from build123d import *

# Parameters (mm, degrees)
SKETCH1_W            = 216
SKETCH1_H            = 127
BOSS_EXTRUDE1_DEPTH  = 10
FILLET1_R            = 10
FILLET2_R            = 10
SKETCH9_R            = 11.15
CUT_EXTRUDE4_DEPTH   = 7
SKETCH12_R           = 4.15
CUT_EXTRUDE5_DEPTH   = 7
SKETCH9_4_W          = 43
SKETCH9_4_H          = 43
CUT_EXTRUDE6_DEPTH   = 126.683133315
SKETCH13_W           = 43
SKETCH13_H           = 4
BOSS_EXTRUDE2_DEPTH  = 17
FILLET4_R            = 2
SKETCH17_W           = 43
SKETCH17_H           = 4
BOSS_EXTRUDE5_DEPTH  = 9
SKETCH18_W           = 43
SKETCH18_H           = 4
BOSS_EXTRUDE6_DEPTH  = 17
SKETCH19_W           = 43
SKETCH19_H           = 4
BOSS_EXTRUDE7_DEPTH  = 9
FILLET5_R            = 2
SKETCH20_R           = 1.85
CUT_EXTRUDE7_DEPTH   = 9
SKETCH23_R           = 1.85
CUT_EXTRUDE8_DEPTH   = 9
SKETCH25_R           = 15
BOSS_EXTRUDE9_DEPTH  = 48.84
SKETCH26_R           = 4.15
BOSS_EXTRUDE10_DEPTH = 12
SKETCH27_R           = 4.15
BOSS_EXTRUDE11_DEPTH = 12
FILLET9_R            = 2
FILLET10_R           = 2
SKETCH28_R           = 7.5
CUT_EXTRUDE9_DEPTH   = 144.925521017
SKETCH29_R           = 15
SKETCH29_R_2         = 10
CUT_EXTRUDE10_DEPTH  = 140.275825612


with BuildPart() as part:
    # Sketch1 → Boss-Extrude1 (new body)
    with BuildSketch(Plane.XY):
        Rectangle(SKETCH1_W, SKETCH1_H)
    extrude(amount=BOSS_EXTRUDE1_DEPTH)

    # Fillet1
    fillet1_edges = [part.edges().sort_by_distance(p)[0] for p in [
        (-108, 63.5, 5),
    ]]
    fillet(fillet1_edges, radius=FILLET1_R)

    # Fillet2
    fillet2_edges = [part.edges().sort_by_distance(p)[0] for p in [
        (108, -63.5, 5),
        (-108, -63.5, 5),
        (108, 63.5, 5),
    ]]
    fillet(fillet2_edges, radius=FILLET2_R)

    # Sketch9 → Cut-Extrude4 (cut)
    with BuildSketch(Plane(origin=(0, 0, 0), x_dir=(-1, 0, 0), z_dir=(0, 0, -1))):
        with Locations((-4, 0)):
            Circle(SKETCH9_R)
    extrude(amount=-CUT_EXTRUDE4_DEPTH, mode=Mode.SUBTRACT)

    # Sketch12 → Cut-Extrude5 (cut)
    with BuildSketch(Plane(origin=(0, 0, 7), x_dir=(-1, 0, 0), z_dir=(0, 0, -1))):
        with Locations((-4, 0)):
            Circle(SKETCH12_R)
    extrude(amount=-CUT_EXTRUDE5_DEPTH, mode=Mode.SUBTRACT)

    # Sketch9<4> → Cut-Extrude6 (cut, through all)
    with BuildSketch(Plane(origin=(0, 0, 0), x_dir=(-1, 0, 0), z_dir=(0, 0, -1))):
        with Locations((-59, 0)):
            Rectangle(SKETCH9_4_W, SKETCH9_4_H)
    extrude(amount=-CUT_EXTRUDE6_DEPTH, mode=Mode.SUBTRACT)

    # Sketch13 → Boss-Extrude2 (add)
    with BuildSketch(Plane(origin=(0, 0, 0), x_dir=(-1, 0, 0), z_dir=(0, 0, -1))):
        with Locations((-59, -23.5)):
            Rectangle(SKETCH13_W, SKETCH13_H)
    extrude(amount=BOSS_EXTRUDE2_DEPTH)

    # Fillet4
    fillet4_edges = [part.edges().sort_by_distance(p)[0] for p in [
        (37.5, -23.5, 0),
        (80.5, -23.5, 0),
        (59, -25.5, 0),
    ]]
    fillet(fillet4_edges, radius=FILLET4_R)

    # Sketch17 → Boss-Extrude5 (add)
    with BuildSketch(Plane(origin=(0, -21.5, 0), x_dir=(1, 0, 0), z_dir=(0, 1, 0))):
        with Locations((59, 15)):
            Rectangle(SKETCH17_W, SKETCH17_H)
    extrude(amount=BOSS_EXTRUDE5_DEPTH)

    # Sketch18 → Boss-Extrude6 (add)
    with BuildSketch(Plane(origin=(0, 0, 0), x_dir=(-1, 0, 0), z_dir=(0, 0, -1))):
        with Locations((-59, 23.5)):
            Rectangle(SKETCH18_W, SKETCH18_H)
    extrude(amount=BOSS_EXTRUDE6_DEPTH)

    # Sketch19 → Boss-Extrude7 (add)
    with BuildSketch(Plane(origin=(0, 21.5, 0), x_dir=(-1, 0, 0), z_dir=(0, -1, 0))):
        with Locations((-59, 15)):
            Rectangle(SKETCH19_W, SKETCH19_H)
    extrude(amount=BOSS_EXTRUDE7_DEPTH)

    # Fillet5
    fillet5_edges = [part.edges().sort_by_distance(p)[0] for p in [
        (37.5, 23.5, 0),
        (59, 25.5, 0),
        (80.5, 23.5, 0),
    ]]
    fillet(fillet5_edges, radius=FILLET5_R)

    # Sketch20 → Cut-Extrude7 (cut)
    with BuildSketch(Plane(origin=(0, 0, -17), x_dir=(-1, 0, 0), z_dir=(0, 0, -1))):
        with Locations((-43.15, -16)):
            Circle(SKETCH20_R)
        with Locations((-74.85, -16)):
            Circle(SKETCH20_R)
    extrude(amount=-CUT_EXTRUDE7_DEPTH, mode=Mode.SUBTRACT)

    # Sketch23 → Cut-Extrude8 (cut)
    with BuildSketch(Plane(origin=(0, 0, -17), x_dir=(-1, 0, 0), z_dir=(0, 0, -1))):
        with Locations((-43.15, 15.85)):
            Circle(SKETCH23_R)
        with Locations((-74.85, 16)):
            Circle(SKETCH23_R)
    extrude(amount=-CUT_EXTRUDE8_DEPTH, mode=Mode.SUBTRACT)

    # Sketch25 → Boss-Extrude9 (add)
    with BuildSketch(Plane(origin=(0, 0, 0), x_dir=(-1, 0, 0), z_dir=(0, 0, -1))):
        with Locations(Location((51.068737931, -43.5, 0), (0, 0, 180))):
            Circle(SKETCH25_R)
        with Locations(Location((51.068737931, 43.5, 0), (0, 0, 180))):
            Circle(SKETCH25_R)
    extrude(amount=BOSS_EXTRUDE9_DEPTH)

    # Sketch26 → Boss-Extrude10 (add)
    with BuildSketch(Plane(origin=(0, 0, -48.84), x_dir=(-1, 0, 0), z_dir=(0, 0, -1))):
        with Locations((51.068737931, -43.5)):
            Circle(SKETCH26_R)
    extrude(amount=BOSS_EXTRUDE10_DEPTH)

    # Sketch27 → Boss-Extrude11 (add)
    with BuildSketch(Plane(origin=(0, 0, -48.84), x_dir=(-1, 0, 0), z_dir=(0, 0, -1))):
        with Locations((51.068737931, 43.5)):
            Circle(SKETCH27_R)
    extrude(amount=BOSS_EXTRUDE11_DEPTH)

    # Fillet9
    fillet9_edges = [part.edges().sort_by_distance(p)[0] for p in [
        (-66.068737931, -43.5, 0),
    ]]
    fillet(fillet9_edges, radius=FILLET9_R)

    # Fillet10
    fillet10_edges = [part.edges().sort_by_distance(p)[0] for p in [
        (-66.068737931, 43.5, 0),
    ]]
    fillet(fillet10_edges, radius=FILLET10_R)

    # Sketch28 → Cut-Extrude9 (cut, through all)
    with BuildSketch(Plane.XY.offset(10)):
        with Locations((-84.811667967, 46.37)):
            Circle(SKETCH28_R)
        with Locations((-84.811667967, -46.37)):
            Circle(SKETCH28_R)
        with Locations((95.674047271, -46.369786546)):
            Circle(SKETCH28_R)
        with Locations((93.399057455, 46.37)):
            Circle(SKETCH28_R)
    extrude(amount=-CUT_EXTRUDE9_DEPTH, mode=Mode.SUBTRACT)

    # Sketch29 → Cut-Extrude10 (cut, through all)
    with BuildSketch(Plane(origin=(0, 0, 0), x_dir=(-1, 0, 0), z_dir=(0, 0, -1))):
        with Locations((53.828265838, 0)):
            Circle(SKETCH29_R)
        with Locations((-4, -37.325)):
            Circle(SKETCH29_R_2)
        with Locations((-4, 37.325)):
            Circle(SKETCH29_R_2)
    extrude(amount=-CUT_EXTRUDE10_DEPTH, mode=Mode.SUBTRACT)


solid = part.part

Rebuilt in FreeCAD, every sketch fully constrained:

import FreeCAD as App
import Part
import Sketcher

V = App.Vector


def edges_at(feature, points):
    """Names of the edges that pass closest to the given points."""
    edges = feature.Shape.Edges
    near = lambda p: min(range(len(edges)), key=lambda i: edges[i].distToShape(Part.Vertex(*p))[0])
    return sorted({f"Edge{near(p) + 1}" for p in points})


def add_polygon(sketch, points):
    """Adds a closed chain of lines whose ends are joined by coincident constraints."""
    first, n = sketch.GeometryCount, len(points)
    for a, b in zip(points, points[1:] + points[:1]):
        sketch.addGeometry(Part.LineSegment(App.Vector(*a, 0), App.Vector(*b, 0)), False)
    for i in range(n):
        sketch.addConstraint(Sketcher.Constraint("Coincident", first + i, 2, first + (i + 1) % n, 1))

doc = App.newDocument("Part")
body = doc.addObject("PartDesign::Body", "Body")

# Sketch on XY plane
sketch1 = doc.addObject("Sketcher::SketchObject", "Sketch")
body.addObject(sketch1)
sketch1.AttachmentSupport = (doc.XY_Plane, [""])
sketch1.MapMode = "FlatFace"
add_polygon(sketch1, [(-108, 64), (-108, -64), (108, -64), (108, 64)])  # lines 0-3
sketch1.addConstraint([
    Sketcher.Constraint("Vertical", 0),
    Sketcher.Constraint("Horizontal", 1),
    Sketcher.Constraint("Vertical", 2),
    Sketcher.Constraint("Horizontal", 3),
    Sketcher.Constraint("Symmetric", 0, 2, 2, 2, -1, 1),
    Sketcher.Constraint("DistanceX", 1, 1, 1, 2, 216.0),
    Sketcher.Constraint("DistanceY", 0, 2, 0, 1, 127.0),
])
pad1 = doc.addObject("PartDesign::Pad", "Pad")
body.addObject(pad1)
pad1.Profile = sketch1
pad1.Length = 10
doc.recompute()

fillet = doc.addObject("PartDesign::Fillet", "Fillet")
body.addObject(fillet)
fillet.Base = (pad1, edges_at(pad1, [(-108, 63.5, 5)]))
fillet.Radius = 10
doc.recompute()

fillet2 = doc.addObject("PartDesign::Fillet", "Fillet001")
body.addObject(fillet2)
fillet2.Base = (fillet, edges_at(fillet, [(108, -63.5, 5), (-108, -63.5, 5), (108, 63.5, 5)]))
fillet2.Radius = 10

# Sketch on XY plane
sketch2 = doc.addObject("Sketcher::SketchObject", "Sketch001")
body.addObject(sketch2)
sketch2.AttachmentSupport = (doc.XY_Plane, [""])
sketch2.MapMode = "FlatFace"
sketch2.addGeometry(Part.Circle(V(4, 0, 0), V(0, 0, 1), 11), False)
sketch2.addConstraint([
    Sketcher.Constraint("PointOnObject", 0, 3, -1),
    Sketcher.Constraint("Diameter", 0, 22.3),
    Sketcher.Constraint("DistanceX", -1, 1, 0, 3, 4.0),
])
pocket1 = doc.addObject("PartDesign::Pocket", "Pocket")
body.addObject(pocket1)
pocket1.Profile = sketch2
pocket1.Length = 7
pocket1.Reversed = True

# Sketch on XY plane
sketch3 = doc.addObject("Sketcher::SketchObject", "Sketch002")
body.addObject(sketch3)
sketch3.AttachmentSupport = (doc.XY_Plane, [""])
sketch3.MapMode = "FlatFace"
sketch3.AttachmentOffset = App.Placement(V(0, 0, 7), App.Rotation())
sketch3.addGeometry(Part.Circle(V(4, 0, 0), V(0, 0, 1), 4.2), False)
sketch3.addConstraint([
    Sketcher.Constraint("PointOnObject", 0, 3, -1),
    Sketcher.Constraint("Diameter", 0, 8.3),
    Sketcher.Constraint("DistanceX", -1, 1, 0, 3, 4.0),
])
pocket2 = doc.addObject("PartDesign::Pocket", "Pocket001")
body.addObject(pocket2)
pocket2.Profile = sketch3
pocket2.Length = 7
pocket2.Reversed = True

# Sketch on XY plane
sketch4 = doc.addObject("Sketcher::SketchObject", "Sketch003")
body.addObject(sketch4)
sketch4.AttachmentSupport = (doc.XY_Plane, [""])
sketch4.MapMode = "FlatFace"
add_polygon(sketch4, [(80, 22), (80, -22), (38, -22), (38, 22)])  # lines 0-3
sketch4.addConstraint([
    Sketcher.Constraint("Vertical", 0),
    Sketcher.Constraint("Horizontal", 1),
    Sketcher.Constraint("Vertical", 2),
    Sketcher.Constraint("Horizontal", 3),
    Sketcher.Constraint("Equal", 3, 0),
    Sketcher.Constraint("DistanceX", 1, 2, 1, 1, 43.0),
    Sketcher.Constraint("DistanceX", -1, 1, 0, 2, 80.5),
    Sketcher.Constraint("DistanceY", 0, 2, -1, 1, 21.5),
])
pocket3 = doc.addObject("PartDesign::Pocket", "Pocket002")
body.addObject(pocket3)
pocket3.Profile = sketch4
pocket3.Type = "ThroughAll"
pocket3.Reversed = True

# Sketch on XY plane
sketch5 = doc.addObject("Sketcher::SketchObject", "Sketch004")
body.addObject(sketch5)
sketch5.AttachmentSupport = (doc.XY_Plane, [""])
sketch5.MapMode = "FlatFace"
add_polygon(sketch5, [(80.5, -21.5), (80.5, -25.5), (37.5, -25.5), (37.5, -21.5)])  # lines 0-3
sketch5.addConstraint([
    Sketcher.Constraint("Vertical", 0),
    Sketcher.Constraint("Horizontal", 1),
    Sketcher.Constraint("Vertical", 2),
    Sketcher.Constraint("Horizontal", 3),
    Sketcher.Constraint("DistanceX", 1, 2, 1, 1, 43.0),
    Sketcher.Constraint("DistanceY", 0, 2, 0, 1, 4.0),
    Sketcher.Constraint("DistanceX", -1, 1, 0, 2, 80.5),
    Sketcher.Constraint("DistanceY", 0, 2, -1, 1, 25.5),
])
pad2 = doc.addObject("PartDesign::Pad", "Pad001")
body.addObject(pad2)
pad2.Profile = sketch5
pad2.Length = 17
pad2.Reversed = True
doc.recompute()

fillet3 = doc.addObject("PartDesign::Fillet", "Fillet002")
body.addObject(fillet3)
fillet3.Base = (pad2, edges_at(pad2, [(37.5, -23.5, 0), (80.5, -23.5, 0), (59, -25.5, 0)]))
fillet3.Radius = 2

# Sketch on XZ plane
sketch6 = doc.addObject("Sketcher::SketchObject", "Sketch005")
body.addObject(sketch6)
sketch6.AttachmentSupport = (doc.XZ_Plane, [""])
sketch6.MapMode = "FlatFace"
sketch6.AttachmentOffset = App.Placement(V(0, 0, 21.5), App.Rotation())
add_polygon(sketch6, [(37.5, -17), (37.5, -13), (80.5, -13), (80.5, -17)])  # lines 0-3
sketch6.addConstraint([
    Sketcher.Constraint("Vertical", 0),
    Sketcher.Constraint("Horizontal", 1),
    Sketcher.Constraint("Vertical", 2),
    Sketcher.Constraint("Horizontal", 3),
    Sketcher.Constraint("DistanceX", 1, 1, 1, 2, 43.0),
    Sketcher.Constraint("DistanceY", 0, 1, 0, 2, 4.0),
    Sketcher.Constraint("DistanceY", 0, 2, -1, 1, 13.0),
    Sketcher.Constraint("DistanceX", -1, 1, 0, 2, 37.5),
])
pad3 = doc.addObject("PartDesign::Pad", "Pad002")
body.addObject(pad3)
pad3.Profile = sketch6
pad3.Length = 9
pad3.Reversed = True

# Sketch on XY plane
sketch7 = doc.addObject("Sketcher::SketchObject", "Sketch006")
body.addObject(sketch7)
sketch7.AttachmentSupport = (doc.XY_Plane, [""])
sketch7.MapMode = "FlatFace"
add_polygon(sketch7, [(80.5, 25.5), (80.5, 21.5), (37.5, 21.5), (37.5, 25.5)])  # lines 0-3
sketch7.addConstraint([
    Sketcher.Constraint("Vertical", 0),
    Sketcher.Constraint("Horizontal", 1),
    Sketcher.Constraint("Vertical", 2),
    Sketcher.Constraint("Horizontal", 3),
    Sketcher.Constraint("DistanceX", 1, 2, 1, 1, 43.0),
    Sketcher.Constraint("DistanceY", 0, 2, 0, 1, 4.0),
    Sketcher.Constraint("DistanceX", -1, 1, 0, 2, 80.5),
    Sketcher.Constraint("DistanceY", -1, 1, 0, 2, 21.5),
])
pad4 = doc.addObject("PartDesign::Pad", "Pad003")
body.addObject(pad4)
pad4.Profile = sketch7
pad4.Length = 17
pad4.Reversed = True

# Sketch on XZ plane
sketch8 = doc.addObject("Sketcher::SketchObject", "Sketch007")
body.addObject(sketch8)
sketch8.AttachmentSupport = (doc.XZ_Plane, [""])
sketch8.MapMode = "FlatFace"
sketch8.AttachmentOffset = App.Placement(V(0, 0, -21.5), App.Rotation())
add_polygon(sketch8, [(80.5, -17), (80.5, -13), (37.5, -13), (37.5, -17)])  # lines 0-3
sketch8.addConstraint([
    Sketcher.Constraint("Vertical", 0),
    Sketcher.Constraint("Horizontal", 1),
    Sketcher.Constraint("Vertical", 2),
    Sketcher.Constraint("Horizontal", 3),
    Sketcher.Constraint("DistanceX", 1, 2, 1, 1, 43.0),
    Sketcher.Constraint("DistanceY", 0, 1, 0, 2, 4.0),
    Sketcher.Constraint("DistanceY", 0, 2, -1, 1, 13.0),
    Sketcher.Constraint("DistanceX", -1, 1, 0, 2, 80.5),
])
pad5 = doc.addObject("PartDesign::Pad", "Pad004")
body.addObject(pad5)
pad5.Profile = sketch8
pad5.Length = 9
doc.recompute()

fillet4 = doc.addObject("PartDesign::Fillet", "Fillet003")
body.addObject(fillet4)
fillet4.Base = (pad5, edges_at(pad5, [(37.5, 23.5, 0), (59, 25.5, 0), (80.5, 23.5, 0)]))
fillet4.Radius = 2

# Sketch on XY plane
sketch9 = doc.addObject("Sketcher::SketchObject", "Sketch008")
body.addObject(sketch9)
sketch9.AttachmentSupport = (doc.XY_Plane, [""])
sketch9.MapMode = "FlatFace"
sketch9.AttachmentOffset = App.Placement(V(0, 0, -17), App.Rotation())
sketch9.addGeometry([
    Part.Circle(V(43.1, -16, 0), V(0, 0, 1), 1.9),
    Part.Circle(V(74.8, -16, 0), V(0, 0, 1), 1.9),
], False)
sketch9.addConstraint([
    Sketcher.Constraint("Equal", 0, 1),
    Sketcher.Constraint("Horizontal", 0, 3, 1, 3),
    Sketcher.Constraint("Diameter", 0, 3.7),
    Sketcher.Constraint("DistanceY", 0, 3, -1, 1, 16.0),
    Sketcher.Constraint("DistanceX", 0, 3, 1, 3, 31.7),
    Sketcher.Constraint("DistanceX", -1, 1, 0, 3, 43.15),
])
pocket4 = doc.addObject("PartDesign::Pocket", "Pocket003")
body.addObject(pocket4)
pocket4.Profile = sketch9
pocket4.Length = 9
pocket4.Reversed = True

# Sketch on XY plane
sketch10 = doc.addObject("Sketcher::SketchObject", "Sketch009")
body.addObject(sketch10)
sketch10.AttachmentSupport = (doc.XY_Plane, [""])
sketch10.MapMode = "FlatFace"
sketch10.AttachmentOffset = App.Placement(V(0, 0, -17), App.Rotation())
sketch10.addGeometry([
    Part.Circle(V(43.1, 15.8, 0), V(0, 0, 1), 1.9),
    Part.Circle(V(74.8, 16, 0), V(0, 0, 1), 1.9),
], False)
sketch10.addConstraint([
    Sketcher.Constraint("Equal", 0, 1),
    Sketcher.Constraint("Diameter", 0, 3.7),
    Sketcher.Constraint("DistanceY", -1, 1, 1, 3, 16.0),
    Sketcher.Constraint("DistanceX", 0, 3, 1, 3, 31.7),
    Sketcher.Constraint("DistanceX", -1, 1, 0, 3, 43.15),
    Sketcher.Constraint("DistanceY", -1, 1, 0, 3, 15.85),
])
pocket5 = doc.addObject("PartDesign::Pocket", "Pocket004")
body.addObject(pocket5)
pocket5.Profile = sketch10
pocket5.Length = 9
pocket5.Reversed = True

# Sketch on XY plane
sketch11 = doc.addObject("Sketcher::SketchObject", "Sketch010")
body.addObject(sketch11)
sketch11.AttachmentSupport = (doc.XY_Plane, [""])
sketch11.MapMode = "FlatFace"
sketch11.addGeometry([
    Part.Circle(V(-51, -44, 0), V(0, 0, 1), 15),
    Part.Circle(V(-51, 44, 0), V(0, 0, 1), 15),
], False)
sketch11.addConstraint([
    Sketcher.Constraint("Equal", 0, 1),
    Sketcher.Constraint("Symmetric", 0, 3, 1, 3, -1),
    Sketcher.Constraint("Diameter", 0, 30.0),
    Sketcher.Constraint("DistanceY", 0, 3, 1, 3, 87.0),
    Sketcher.Constraint("DistanceX", 0, 3, -1, 1, 51.068738),
])
pad6 = doc.addObject("PartDesign::Pad", "Pad005")
body.addObject(pad6)
pad6.Profile = sketch11
pad6.Length = 48.84
pad6.Reversed = True

# Sketch on XY plane
sketch12 = doc.addObject("Sketcher::SketchObject", "Sketch011")
body.addObject(sketch12)
sketch12.AttachmentSupport = (doc.XY_Plane, [""])
sketch12.MapMode = "FlatFace"
sketch12.AttachmentOffset = App.Placement(V(0, 0, -48.84), App.Rotation())
sketch12.addGeometry(Part.Circle(V(-51.1, -43.5, 0), V(0, 0, 1), 4.2), False)
sketch12.addConstraint([
    Sketcher.Constraint("Diameter", 0, 8.3),
    Sketcher.Constraint("DistanceY", 0, 3, -1, 1, 43.5),
    Sketcher.Constraint("DistanceX", 0, 3, -1, 1, 51.068738),
])
pad7 = doc.addObject("PartDesign::Pad", "Pad006")
body.addObject(pad7)
pad7.Profile = sketch12
pad7.Length = 12
pad7.Reversed = True

# Sketch on XY plane
sketch13 = doc.addObject("Sketcher::SketchObject", "Sketch012")
body.addObject(sketch13)
sketch13.AttachmentSupport = (doc.XY_Plane, [""])
sketch13.MapMode = "FlatFace"
sketch13.AttachmentOffset = App.Placement(V(0, 0, -48.84), App.Rotation())
sketch13.addGeometry(Part.Circle(V(-51.1, 43.5, 0), V(0, 0, 1), 4.2), False)
sketch13.addConstraint([
    Sketcher.Constraint("Diameter", 0, 8.3),
    Sketcher.Constraint("DistanceY", -1, 1, 0, 3, 43.5),
    Sketcher.Constraint("DistanceX", 0, 3, -1, 1, 51.068738),
])
pad8 = doc.addObject("PartDesign::Pad", "Pad007")
body.addObject(pad8)
pad8.Profile = sketch13
pad8.Length = 12
pad8.Reversed = True
doc.recompute()

fillet5 = doc.addObject("PartDesign::Fillet", "Fillet004")
body.addObject(fillet5)
fillet5.Base = (pad8, edges_at(pad8, [(-66.069, -43.5, 0)]))
fillet5.Radius = 2
doc.recompute()

fillet6 = doc.addObject("PartDesign::Fillet", "Fillet005")
body.addObject(fillet6)
fillet6.Base = (fillet5, edges_at(fillet5, [(-66.069, 43.5, 0)]))
fillet6.Radius = 2

# Sketch on XY plane
sketch14 = doc.addObject("Sketcher::SketchObject", "Sketch013")
body.addObject(sketch14)
sketch14.AttachmentSupport = (doc.XY_Plane, [""])
sketch14.MapMode = "FlatFace"
sketch14.AttachmentOffset = App.Placement(V(0, 0, 10), App.Rotation())
sketch14.addGeometry([
    Part.Circle(V(-85, 46, 0), V(0, 0, 1), 8),
    Part.Circle(V(-85, -46, 0), V(0, 0, 1), 8),
    Part.Circle(V(96, -46, 0), V(0, 0, 1), 8),
    Part.Circle(V(93, 46, 0), V(0, 0, 1), 8),
], False)
sketch14.addConstraint([
    Sketcher.Constraint("Equal", 0, 1),
    Sketcher.Constraint("Equal", 1, 2),
    Sketcher.Constraint("Equal", 2, 3),
    Sketcher.Constraint("Symmetric", 0, 3, 1, 3, -1),
    Sketcher.Constraint("Horizontal", 0, 3, 3, 3),
    Sketcher.Constraint("Diameter", 0, 15.0),
    Sketcher.Constraint("DistanceY", -1, 1, 0, 3, 46.37),
    Sketcher.Constraint("DistanceX", 3, 3, 2, 3, 2.27499),
    Sketcher.Constraint("DistanceX", 0, 3, -1, 1, 84.811668),
    Sketcher.Constraint("DistanceX", -1, 1, 2, 3, 95.674047),
    Sketcher.Constraint("DistanceY", 2, 3, -1, 1, 46.369787),
])
pocket6 = doc.addObject("PartDesign::Pocket", "Pocket005")
body.addObject(pocket6)
pocket6.Profile = sketch14
pocket6.Type = "ThroughAll"

# Sketch on XY plane
sketch15 = doc.addObject("Sketcher::SketchObject", "Sketch014")
body.addObject(sketch15)
sketch15.AttachmentSupport = (doc.XY_Plane, [""])
sketch15.MapMode = "FlatFace"
sketch15.addGeometry([
    Part.Circle(V(-54, 0, 0), V(0, 0, 1), 15),
    Part.Circle(V(4, -37, 0), V(0, 0, 1), 10),
    Part.Circle(V(4, 37, 0), V(0, 0, 1), 10),
], False)
sketch15.addConstraint([
    Sketcher.Constraint("Equal", 1, 2),
    Sketcher.Constraint("Symmetric", 1, 3, 2, 3, -1),
    Sketcher.Constraint("PointOnObject", 0, 3, -1),
    Sketcher.Constraint("Diameter", 0, 30.0),
    Sketcher.Constraint("Diameter", 1, 20.0),
    Sketcher.Constraint("DistanceX", -1, 1, 1, 3, 4.0),
    Sketcher.Constraint("DistanceY", 1, 3, 2, 3, 74.65),
    Sketcher.Constraint("DistanceX", 0, 3, -1, 1, 53.828266),
])
pocket7 = doc.addObject("PartDesign::Pocket", "Pocket006")
body.addObject(pocket7)
pocket7.Profile = sketch15
pocket7.Type = "ThroughAll"
pocket7.Reversed = True

doc.recompute()
